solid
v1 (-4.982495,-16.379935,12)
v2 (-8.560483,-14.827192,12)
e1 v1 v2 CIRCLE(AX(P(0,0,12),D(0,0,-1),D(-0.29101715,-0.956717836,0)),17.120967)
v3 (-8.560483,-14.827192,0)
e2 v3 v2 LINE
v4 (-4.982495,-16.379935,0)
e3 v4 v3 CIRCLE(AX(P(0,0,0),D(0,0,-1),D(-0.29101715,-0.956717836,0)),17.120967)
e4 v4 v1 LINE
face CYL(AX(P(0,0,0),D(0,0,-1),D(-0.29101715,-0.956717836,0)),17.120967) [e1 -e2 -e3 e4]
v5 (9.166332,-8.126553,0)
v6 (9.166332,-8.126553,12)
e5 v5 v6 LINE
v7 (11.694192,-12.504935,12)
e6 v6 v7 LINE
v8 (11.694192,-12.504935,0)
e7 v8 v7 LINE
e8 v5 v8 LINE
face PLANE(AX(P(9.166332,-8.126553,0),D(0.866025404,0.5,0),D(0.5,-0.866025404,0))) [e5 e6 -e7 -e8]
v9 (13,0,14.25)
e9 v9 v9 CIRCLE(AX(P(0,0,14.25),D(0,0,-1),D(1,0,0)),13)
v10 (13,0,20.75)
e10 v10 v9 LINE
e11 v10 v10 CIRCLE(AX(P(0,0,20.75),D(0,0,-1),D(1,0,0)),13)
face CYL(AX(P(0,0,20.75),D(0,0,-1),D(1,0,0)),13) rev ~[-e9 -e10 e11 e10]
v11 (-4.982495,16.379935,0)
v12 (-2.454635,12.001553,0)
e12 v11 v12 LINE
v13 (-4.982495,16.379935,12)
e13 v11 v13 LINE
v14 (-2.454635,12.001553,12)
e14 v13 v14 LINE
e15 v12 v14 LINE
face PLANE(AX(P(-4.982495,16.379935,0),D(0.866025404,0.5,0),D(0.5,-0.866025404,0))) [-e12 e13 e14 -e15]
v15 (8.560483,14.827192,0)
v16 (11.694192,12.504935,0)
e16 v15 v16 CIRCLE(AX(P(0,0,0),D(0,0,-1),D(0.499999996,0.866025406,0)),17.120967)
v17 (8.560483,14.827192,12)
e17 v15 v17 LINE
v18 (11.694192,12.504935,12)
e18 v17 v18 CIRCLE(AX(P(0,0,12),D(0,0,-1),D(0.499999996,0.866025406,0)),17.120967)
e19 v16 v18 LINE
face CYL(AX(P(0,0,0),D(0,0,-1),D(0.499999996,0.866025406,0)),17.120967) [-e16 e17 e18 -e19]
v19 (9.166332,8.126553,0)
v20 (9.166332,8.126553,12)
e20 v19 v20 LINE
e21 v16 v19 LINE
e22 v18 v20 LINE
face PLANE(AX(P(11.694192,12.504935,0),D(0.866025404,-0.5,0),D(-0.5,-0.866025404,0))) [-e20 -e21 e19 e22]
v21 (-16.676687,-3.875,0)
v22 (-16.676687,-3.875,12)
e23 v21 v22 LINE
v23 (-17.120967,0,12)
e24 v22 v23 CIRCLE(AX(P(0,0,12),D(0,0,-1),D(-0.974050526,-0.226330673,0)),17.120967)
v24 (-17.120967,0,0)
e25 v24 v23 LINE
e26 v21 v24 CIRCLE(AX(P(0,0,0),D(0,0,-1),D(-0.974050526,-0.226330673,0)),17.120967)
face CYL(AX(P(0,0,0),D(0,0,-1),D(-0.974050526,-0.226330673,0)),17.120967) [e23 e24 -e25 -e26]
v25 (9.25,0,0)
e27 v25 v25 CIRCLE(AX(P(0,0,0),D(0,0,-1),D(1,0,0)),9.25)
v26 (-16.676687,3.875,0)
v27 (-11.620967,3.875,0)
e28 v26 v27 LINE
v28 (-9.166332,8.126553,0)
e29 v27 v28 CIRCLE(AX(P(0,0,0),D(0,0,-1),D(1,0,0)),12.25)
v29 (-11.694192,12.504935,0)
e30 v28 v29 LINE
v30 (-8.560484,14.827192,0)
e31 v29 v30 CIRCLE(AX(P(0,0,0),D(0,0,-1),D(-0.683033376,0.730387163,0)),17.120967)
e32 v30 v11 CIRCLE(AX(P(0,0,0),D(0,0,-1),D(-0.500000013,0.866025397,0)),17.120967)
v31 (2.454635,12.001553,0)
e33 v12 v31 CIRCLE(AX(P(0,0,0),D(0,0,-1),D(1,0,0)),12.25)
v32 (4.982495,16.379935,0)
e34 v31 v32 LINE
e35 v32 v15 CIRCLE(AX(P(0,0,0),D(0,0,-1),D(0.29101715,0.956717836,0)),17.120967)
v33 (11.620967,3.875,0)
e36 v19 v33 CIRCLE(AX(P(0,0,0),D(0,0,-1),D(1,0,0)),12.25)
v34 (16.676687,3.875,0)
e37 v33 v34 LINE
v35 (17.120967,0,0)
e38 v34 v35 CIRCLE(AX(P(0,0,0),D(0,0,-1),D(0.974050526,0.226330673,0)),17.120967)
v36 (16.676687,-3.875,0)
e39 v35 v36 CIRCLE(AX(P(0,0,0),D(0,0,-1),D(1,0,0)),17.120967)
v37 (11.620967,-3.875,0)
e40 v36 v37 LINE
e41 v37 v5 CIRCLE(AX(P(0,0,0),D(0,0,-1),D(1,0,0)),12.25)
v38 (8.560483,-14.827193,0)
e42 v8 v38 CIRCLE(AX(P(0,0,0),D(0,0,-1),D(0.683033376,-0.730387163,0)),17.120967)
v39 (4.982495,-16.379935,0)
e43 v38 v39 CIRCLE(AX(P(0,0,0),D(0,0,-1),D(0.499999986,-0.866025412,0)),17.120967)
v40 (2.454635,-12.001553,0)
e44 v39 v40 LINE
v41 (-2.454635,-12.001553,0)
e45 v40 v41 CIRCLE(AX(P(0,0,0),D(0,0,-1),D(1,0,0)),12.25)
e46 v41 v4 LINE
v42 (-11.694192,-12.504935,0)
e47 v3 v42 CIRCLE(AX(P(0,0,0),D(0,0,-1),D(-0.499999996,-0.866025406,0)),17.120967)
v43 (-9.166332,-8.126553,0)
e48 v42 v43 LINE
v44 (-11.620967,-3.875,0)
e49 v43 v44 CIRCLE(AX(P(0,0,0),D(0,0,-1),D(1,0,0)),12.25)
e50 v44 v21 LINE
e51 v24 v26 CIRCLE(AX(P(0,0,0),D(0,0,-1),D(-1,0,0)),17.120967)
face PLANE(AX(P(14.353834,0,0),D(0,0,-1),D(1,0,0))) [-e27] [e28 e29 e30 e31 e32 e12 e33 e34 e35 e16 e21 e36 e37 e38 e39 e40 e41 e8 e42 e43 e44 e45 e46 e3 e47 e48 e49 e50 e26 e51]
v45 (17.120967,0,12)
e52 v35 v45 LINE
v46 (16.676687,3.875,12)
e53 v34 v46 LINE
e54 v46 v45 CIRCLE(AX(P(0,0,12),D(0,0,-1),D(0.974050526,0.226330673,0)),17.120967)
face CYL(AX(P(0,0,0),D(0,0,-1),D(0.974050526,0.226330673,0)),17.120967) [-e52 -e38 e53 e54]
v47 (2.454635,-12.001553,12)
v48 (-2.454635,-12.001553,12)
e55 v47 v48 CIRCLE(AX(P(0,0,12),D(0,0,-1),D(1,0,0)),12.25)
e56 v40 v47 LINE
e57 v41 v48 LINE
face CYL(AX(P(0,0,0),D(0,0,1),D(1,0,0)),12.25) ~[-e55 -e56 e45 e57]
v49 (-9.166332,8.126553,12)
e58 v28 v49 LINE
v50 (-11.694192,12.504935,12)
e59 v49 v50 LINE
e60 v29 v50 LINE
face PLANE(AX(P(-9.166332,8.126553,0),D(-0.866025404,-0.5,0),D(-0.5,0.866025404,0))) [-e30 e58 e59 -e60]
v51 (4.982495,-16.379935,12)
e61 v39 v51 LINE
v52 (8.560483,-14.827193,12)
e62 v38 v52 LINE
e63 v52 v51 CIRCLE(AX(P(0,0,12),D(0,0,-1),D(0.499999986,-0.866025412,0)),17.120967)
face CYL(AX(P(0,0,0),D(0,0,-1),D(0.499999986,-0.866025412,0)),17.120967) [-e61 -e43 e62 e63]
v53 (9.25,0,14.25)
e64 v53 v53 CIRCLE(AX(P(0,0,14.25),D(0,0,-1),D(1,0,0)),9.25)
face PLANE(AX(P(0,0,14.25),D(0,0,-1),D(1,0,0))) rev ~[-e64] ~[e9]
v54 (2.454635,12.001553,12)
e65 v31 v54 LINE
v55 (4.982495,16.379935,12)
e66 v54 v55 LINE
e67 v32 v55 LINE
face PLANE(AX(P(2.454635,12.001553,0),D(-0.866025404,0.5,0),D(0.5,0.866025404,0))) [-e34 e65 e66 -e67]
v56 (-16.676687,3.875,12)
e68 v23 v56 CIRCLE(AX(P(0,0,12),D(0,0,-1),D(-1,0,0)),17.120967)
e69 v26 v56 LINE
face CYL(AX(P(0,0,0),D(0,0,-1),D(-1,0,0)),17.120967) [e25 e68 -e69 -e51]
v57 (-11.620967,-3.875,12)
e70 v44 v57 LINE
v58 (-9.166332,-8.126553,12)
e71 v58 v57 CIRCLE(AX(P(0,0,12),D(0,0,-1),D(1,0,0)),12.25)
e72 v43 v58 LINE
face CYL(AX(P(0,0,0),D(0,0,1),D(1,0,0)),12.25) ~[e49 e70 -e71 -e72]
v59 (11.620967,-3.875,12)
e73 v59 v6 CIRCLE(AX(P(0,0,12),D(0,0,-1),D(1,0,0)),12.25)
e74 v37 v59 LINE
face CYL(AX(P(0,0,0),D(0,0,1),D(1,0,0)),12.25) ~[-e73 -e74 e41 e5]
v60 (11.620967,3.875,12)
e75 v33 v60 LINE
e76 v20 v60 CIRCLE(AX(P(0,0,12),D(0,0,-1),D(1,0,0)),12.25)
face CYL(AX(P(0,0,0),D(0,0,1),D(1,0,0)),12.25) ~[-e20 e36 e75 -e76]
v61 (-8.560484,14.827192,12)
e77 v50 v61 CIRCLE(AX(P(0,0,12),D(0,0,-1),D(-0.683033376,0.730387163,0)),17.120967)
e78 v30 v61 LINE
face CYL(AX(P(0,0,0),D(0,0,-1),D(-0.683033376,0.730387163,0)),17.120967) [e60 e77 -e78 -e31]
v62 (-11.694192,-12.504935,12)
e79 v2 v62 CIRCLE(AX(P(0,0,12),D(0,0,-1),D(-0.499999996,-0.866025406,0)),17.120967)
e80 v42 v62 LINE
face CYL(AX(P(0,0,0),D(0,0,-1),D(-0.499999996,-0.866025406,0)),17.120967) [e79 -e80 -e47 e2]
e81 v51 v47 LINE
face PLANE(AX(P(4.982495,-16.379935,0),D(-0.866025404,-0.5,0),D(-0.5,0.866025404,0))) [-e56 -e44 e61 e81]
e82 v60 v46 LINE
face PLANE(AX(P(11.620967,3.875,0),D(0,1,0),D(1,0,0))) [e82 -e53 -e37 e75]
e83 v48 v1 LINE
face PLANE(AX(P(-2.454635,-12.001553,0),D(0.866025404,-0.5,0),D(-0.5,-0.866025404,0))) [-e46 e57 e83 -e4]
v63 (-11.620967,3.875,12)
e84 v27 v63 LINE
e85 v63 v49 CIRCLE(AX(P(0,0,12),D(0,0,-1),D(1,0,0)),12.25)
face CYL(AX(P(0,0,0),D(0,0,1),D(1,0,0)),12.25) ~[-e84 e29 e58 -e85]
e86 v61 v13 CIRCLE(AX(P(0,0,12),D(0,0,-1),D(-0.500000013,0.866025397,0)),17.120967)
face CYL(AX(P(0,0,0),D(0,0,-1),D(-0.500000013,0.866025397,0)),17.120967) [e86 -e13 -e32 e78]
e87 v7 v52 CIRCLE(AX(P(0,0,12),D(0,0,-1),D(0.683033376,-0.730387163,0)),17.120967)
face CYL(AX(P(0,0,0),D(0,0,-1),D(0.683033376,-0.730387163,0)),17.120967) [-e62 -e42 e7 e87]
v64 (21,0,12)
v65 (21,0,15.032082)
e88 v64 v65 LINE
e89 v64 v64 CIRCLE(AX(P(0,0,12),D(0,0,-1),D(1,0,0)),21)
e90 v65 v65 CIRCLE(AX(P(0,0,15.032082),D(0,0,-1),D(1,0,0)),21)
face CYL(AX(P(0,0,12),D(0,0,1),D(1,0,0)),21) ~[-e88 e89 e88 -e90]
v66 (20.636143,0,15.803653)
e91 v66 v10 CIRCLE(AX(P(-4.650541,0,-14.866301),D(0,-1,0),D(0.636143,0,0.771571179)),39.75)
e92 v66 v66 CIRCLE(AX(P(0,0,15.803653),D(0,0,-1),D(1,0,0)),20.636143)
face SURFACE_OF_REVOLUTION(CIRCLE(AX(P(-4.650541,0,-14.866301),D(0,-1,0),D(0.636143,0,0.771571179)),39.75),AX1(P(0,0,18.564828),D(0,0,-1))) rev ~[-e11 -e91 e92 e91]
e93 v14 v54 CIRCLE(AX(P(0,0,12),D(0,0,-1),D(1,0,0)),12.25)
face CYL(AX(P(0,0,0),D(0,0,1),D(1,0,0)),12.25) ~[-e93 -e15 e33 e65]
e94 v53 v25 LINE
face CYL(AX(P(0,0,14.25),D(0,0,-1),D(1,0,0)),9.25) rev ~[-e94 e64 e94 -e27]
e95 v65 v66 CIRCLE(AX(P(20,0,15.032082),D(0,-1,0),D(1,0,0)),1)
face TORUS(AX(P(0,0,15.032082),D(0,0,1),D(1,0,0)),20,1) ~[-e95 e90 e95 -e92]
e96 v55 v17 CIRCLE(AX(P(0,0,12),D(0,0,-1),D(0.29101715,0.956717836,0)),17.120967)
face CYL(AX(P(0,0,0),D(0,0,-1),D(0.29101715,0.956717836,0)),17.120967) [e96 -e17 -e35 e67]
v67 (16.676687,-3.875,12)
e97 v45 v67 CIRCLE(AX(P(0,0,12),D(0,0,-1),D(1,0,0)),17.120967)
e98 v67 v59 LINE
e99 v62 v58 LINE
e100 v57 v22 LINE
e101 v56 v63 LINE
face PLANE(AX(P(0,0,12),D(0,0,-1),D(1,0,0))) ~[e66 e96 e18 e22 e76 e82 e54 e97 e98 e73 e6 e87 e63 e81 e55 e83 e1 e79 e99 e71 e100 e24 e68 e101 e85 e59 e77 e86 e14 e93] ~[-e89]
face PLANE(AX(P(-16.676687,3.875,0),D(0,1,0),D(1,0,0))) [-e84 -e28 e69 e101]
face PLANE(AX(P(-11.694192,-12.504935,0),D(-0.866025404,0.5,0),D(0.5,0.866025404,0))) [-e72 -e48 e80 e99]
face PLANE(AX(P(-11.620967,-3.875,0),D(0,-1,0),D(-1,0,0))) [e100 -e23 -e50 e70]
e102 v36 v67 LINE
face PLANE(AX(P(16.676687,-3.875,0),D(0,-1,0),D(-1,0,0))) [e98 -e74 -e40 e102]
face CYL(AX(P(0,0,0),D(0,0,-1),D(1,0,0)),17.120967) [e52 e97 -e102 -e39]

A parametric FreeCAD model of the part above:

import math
import FreeCAD as App
import Part
import Sketcher
from FreeCAD import Vector
Q = App.Units.Quantity

doc = App.newDocument("Part")
body = doc.addObject("PartDesign::Body", "Body")

# Sketch on XZ plane
sketch1 = doc.addObject("Sketcher::SketchObject", "Sketch")
body.addObject(sketch1)
sketch1.AttachmentSupport = (doc.XZ_Plane, [""])
sketch1.MapMode = "FlatFace"
sketch1.addGeometry(Part.LineSegment(Vector(9.25, 0, 0), Vector(12.25, 0, 0)), False)
sketch1.addGeometry(Part.LineSegment(Vector(12.25, 0, 0), Vector(12.25, 12, 0)), False)
sketch1.addGeometry(Part.LineSegment(Vector(12.25, 12, 0), Vector(21, 12, 0)), False)
sketch1.addGeometry(Part.LineSegment(Vector(21, 12, 0), Vector(21, 15.032082, 0)), False)
sketch1.addGeometry(Part.ArcOfCircle(Part.Circle(Vector(20, 15.032082, 0), Vector(0, 0, 1), 1), math.radians(0), math.radians(50.49519)), False)
sketch1.addGeometry(Part.ArcOfCircle(Part.Circle(Vector(-4.650541, -14.866301, 0), Vector(0, 0, 1), 39.75), math.radians(50.49519), math.radians(63.638144)), False)
sketch1.addGeometry(Part.LineSegment(Vector(13, 20.75, 0), Vector(13, 14.25, 0)), False)
sketch1.addGeometry(Part.LineSegment(Vector(13, 14.25, 0), Vector(9.25, 14.25, 0)), False)
sketch1.addGeometry(Part.LineSegment(Vector(9.25, 14.25, 0), Vector(9.25, 0, 0)), False)
sketch1.addConstraint(Sketcher.Constraint("Coincident", 0, 2, 1, 1))
sketch1.addConstraint(Sketcher.Constraint("Coincident", 1, 2, 2, 1))
sketch1.addConstraint(Sketcher.Constraint("Coincident", 2, 2, 3, 1))
sketch1.addConstraint(Sketcher.Constraint("Tangent", 3, 2, 4, 1))
sketch1.addConstraint(Sketcher.Constraint("Tangent", 4, 2, 5, 1))
sketch1.addConstraint(Sketcher.Constraint("Coincident", 5, 2, 6, 1))
sketch1.addConstraint(Sketcher.Constraint("Coincident", 6, 2, 7, 1))
sketch1.addConstraint(Sketcher.Constraint("Coincident", 7, 2, 8, 1))
sketch1.addConstraint(Sketcher.Constraint("Coincident", 8, 2, 0, 1))
sketch1.addConstraint(Sketcher.Constraint("Horizontal", 0))
sketch1.addConstraint(Sketcher.Constraint("Vertical", 1))
sketch1.addConstraint(Sketcher.Constraint("Horizontal", 2))
sketch1.addConstraint(Sketcher.Constraint("Vertical", 3))
sketch1.addConstraint(Sketcher.Constraint("Vertical", 6))
sketch1.addConstraint(Sketcher.Constraint("Horizontal", 7))
sketch1.addConstraint(Sketcher.Constraint("Vertical", 8))
sketch1.addConstraint(Sketcher.Constraint("PointOnObject", 0, 2, -1))
sketch1.addConstraint(Sketcher.Constraint("Radius", 4, 1.0))
sketch1.addConstraint(Sketcher.Constraint("DistanceX", 0, 1, 0, 2, 3.0))
sketch1.addConstraint(Sketcher.Constraint("DistanceY", 1, 1, 1, 2, 12.0))
sketch1.addConstraint(Sketcher.Constraint("Radius", 5, 39.75))
sketch1.addConstraint(Sketcher.Constraint("DistanceY", 6, 2, 6, 1, 6.5))
sketch1.addConstraint(Sketcher.Constraint("DistanceX", -1, 1, 4, 3, 20.0))
sketch1.addConstraint(Sketcher.Constraint("DistanceX", -1, 1, 5, 2, 13.0))
sketch1.addConstraint(Sketcher.Constraint("DistanceX", 2, 1, 2, 2, 8.75))
sketch1.addConstraint(Sketcher.Constraint("DistanceY", 8, 2, 8, 1, 14.25))
sketch1.addConstraint(Sketcher.Constraint("DistanceY", 5, 3, -1, 1, 14.866301))
revolution = doc.addObject("PartDesign::Revolution", "Revolution")
body.addObject(revolution)
revolution.Profile = sketch1
revolution.ReferenceAxis = (sketch1, ["V_Axis"])
revolution.Angle = 360

# Sketch on XY plane
sketch2 = doc.addObject("Sketcher::SketchObject", "Sketch001")
body.addObject(sketch2)
sketch2.AttachmentSupport = (doc.XY_Plane, [""])
sketch2.MapMode = "FlatFace"
sketch2.addGeometry(Part.ArcOfCircle(Part.Circle(Vector(0, 0, 0), Vector(0, 0, 1), 12.25), math.radians(161.559086), math.radians(198.440914)), False)
sketch2.addGeometry(Part.LineSegment(Vector(-11.620967, -3.875, 0), Vector(-16.676687, -3.875, 0)), False)
sketch2.addGeometry(Part.ArcOfCircle(Part.Circle(Vector(0, 0, 0), Vector(0, 0, 1), 17.120967), math.radians(180), math.radians(193.081139)), False)
sketch2.addGeometry(Part.ArcOfCircle(Part.Circle(Vector(0, 0, 0), Vector(0, 0, 1), 17.120967), math.radians(166.918861), math.radians(180)), False)
sketch2.addGeometry(Part.LineSegment(Vector(-16.676687, 3.875, 0), Vector(-11.620967, 3.875, 0)), False)
sketch2.addGeometry(Part.ArcOfCircle(Part.Circle(Vector(0, 0, 0), Vector(0, 0, 1), 12.25), math.radians(101.559086), math.radians(138.440914)), False)
sketch2.addGeometry(Part.LineSegment(Vector(-9.166332, 8.126553, 0), Vector(-11.694192, 12.504935, 0)), False)
sketch2.addGeometry(Part.ArcOfCircle(Part.Circle(Vector(0, 0, 0), Vector(0, 0, 1), 17.120967), math.radians(120.000001), math.radians(133.081139)), False)
sketch2.addGeometry(Part.ArcOfCircle(Part.Circle(Vector(0, 0, 0), Vector(0, 0, 1), 17.120967), math.radians(106.918861), math.radians(120.000001)), False)
sketch2.addGeometry(Part.LineSegment(Vector(-4.982495, 16.379935, 0), Vector(-2.454635, 12.001553, 0)), False)
sketch2.addGeometry(Part.ArcOfCircle(Part.Circle(Vector(0, 0, 0), Vector(0, 0, 1), 12.25), math.radians(41.559086), math.radians(78.440914)), False)
sketch2.addGeometry(Part.LineSegment(Vector(2.454635, 12.001553, 0), Vector(4.982495, 16.379935, 0)), False)
sketch2.addGeometry(Part.ArcOfCircle(Part.Circle(Vector(0, 0, 0), Vector(0, 0, 1), 17.120967), math.radians(60), math.radians(73.081139)), False)
sketch2.addGeometry(Part.ArcOfCircle(Part.Circle(Vector(0, 0, 0), Vector(0, 0, 1), 17.120967), math.radians(46.918861), math.radians(60)), False)
sketch2.addGeometry(Part.LineSegment(Vector(11.694192, 12.504935, 0), Vector(9.166332, 8.126553, 0)), False)
sketch2.addGeometry(Part.LineSegment(Vector(16.676687, -3.875, 0), Vector(11.620967, -3.875, 0)), False)
sketch2.addGeometry(Part.ArcOfCircle(Part.Circle(Vector(0, 0, 0), Vector(0, 0, 1), 12.25), math.radians(-18.440914), math.radians(0)), False)
sketch2.addGeometry(Part.ArcOfCircle(Part.Circle(Vector(0, 0, 0), Vector(0, 0, 1), 12.25), math.radians(0), math.radians(18.440914)), False)
sketch2.addGeometry(Part.LineSegment(Vector(11.620967, 3.875, 0), Vector(16.676687, 3.875, 0)), False)
sketch2.addGeometry(Part.ArcOfCircle(Part.Circle(Vector(0, 0, 0), Vector(0, 0, 1), 17.120967), math.radians(0), math.radians(13.081139)), False)
sketch2.addGeometry(Part.ArcOfCircle(Part.Circle(Vector(0, 0, 0), Vector(0, 0, 1), 17.120967), math.radians(-13.081139), math.radians(0)), False)
sketch2.addGeometry(Part.LineSegment(Vector(4.982495, -16.379935, 0), Vector(2.454635, -12.001553, 0)), False)
sketch2.addGeometry(Part.ArcOfCircle(Part.Circle(Vector(0, 0, 0), Vector(0, 0, 1), 12.25), math.radians(-78.440914), math.radians(-41.559086)), False)
sketch2.addGeometry(Part.LineSegment(Vector(9.166332, -8.126553, 0), Vector(11.694192, -12.504935, 0)), False)
sketch2.addGeometry(Part.ArcOfCircle(Part.Circle(Vector(0, 0, 0), Vector(0, 0, 1), 17.120967), math.radians(-60.000001), math.radians(-46.918861)), False)
sketch2.addGeometry(Part.ArcOfCircle(Part.Circle(Vector(0, 0, 0), Vector(0, 0, 1), 17.120967), math.radians(-73.081139), math.radians(-60.000001)), False)
sketch2.addGeometry(Part.LineSegment(Vector(-11.694192, -12.504935, 0), Vector(-9.166332, -8.126553, 0)), False)
sketch2.addGeometry(Part.ArcOfCircle(Part.Circle(Vector(0, 0, 0), Vector(0, 0, 1), 12.25), math.radians(-138.440914), math.radians(-101.559086)), False)
sketch2.addGeometry(Part.LineSegment(Vector(-2.454635, -12.001553, 0), Vector(-4.982495, -16.379935, 0)), False)
sketch2.addGeometry(Part.ArcOfCircle(Part.Circle(Vector(0, 0, 0), Vector(0, 0, 1), 17.120967), math.radians(-120), math.radians(-106.918861)), False)
sketch2.addGeometry(Part.ArcOfCircle(Part.Circle(Vector(0, 0, 0), Vector(0, 0, 1), 17.120967), math.radians(-133.081139), math.radians(-120)), False)
sketch2.addConstraint(Sketcher.Constraint("Coincident", 0, 2, 1, 1))
sketch2.addConstraint(Sketcher.Constraint("Coincident", 1, 2, 2, 2))
sketch2.addConstraint(Sketcher.Constraint("Tangent", 2, 1, 3, 2))
sketch2.addConstraint(Sketcher.Constraint("Coincident", 3, 1, 4, 1))
sketch2.addConstraint(Sketcher.Constraint("Coincident", 4, 2, 0, 1))
sketch2.addConstraint(Sketcher.Constraint("Coincident", 5, 2, 6, 1))
sketch2.addConstraint(Sketcher.Constraint("Coincident", 6, 2, 7, 2))
sketch2.addConstraint(Sketcher.Constraint("Tangent", 7, 1, 8, 2))
sketch2.addConstraint(Sketcher.Constraint("Coincident", 8, 1, 9, 1))
sketch2.addConstraint(Sketcher.Constraint("Coincident", 9, 2, 5, 1))
sketch2.addConstraint(Sketcher.Constraint("Coincident", 10, 2, 11, 1))
sketch2.addConstraint(Sketcher.Constraint("Coincident", 11, 2, 12, 2))
sketch2.addConstraint(Sketcher.Constraint("Tangent", 12, 1, 13, 2))
sketch2.addConstraint(Sketcher.Constraint("Coincident", 13, 1, 14, 1))
sketch2.addConstraint(Sketcher.Constraint("Coincident", 14, 2, 10, 1))
sketch2.addConstraint(Sketcher.Constraint("Coincident", 15, 2, 16, 1))
sketch2.addConstraint(Sketcher.Constraint("Tangent", 16, 2, 17, 1))
sketch2.addConstraint(Sketcher.Constraint("Coincident", 17, 2, 18, 1))
sketch2.addConstraint(Sketcher.Constraint("Coincident", 18, 2, 19, 2))
sketch2.addConstraint(Sketcher.Constraint("Tangent", 19, 1, 20, 2))
sketch2.addConstraint(Sketcher.Constraint("Coincident", 20, 1, 15, 1))
sketch2.addConstraint(Sketcher.Constraint("Coincident", 21, 2, 22, 1))
sketch2.addConstraint(Sketcher.Constraint("Coincident", 22, 2, 23, 1))
sketch2.addConstraint(Sketcher.Constraint("Coincident", 23, 2, 24, 2))
sketch2.addConstraint(Sketcher.Constraint("Tangent", 24, 1, 25, 2))
sketch2.addConstraint(Sketcher.Constraint("Coincident", 25, 1, 21, 1))
sketch2.addConstraint(Sketcher.Constraint("Coincident", 26, 2, 27, 1))
sketch2.addConstraint(Sketcher.Constraint("Coincident", 27, 2, 28, 1))
sketch2.addConstraint(Sketcher.Constraint("Coincident", 28, 2, 29, 2))
sketch2.addConstraint(Sketcher.Constraint("Tangent", 29, 1, 30, 2))
sketch2.addConstraint(Sketcher.Constraint("Coincident", 30, 1, 26, 1))
sketch2.addConstraint(Sketcher.Constraint("Horizontal", 1))
sketch2.addConstraint(Sketcher.Constraint("Horizontal", 4))
sketch2.addConstraint(Sketcher.Constraint("Horizontal", 15))
sketch2.addConstraint(Sketcher.Constraint("Horizontal", 18))
sketch2.addConstraint(Sketcher.Constraint("Coincident", 0, 3, -1, 1))
sketch2.addConstraint(Sketcher.Constraint("Coincident", 2, 3, -1, 1))
sketch2.addConstraint(Sketcher.Constraint("Coincident", 5, 3, -1, 1))
sketch2.addConstraint(Sketcher.Constraint("Coincident", 7, 3, -1, 1))
sketch2.addConstraint(Sketcher.Constraint("Coincident", 10, 3, -1, 1))
sketch2.addConstraint(Sketcher.Constraint("Coincident", 12, 3, -1, 1))
sketch2.addConstraint(Sketcher.Constraint("Coincident", 16, 3, -1, 1))
sketch2.addConstraint(Sketcher.Constraint("Coincident", 19, 3, -1, 1))
sketch2.addConstraint(Sketcher.Constraint("Coincident", 22, 3, -1, 1))
sketch2.addConstraint(Sketcher.Constraint("Coincident", 24, 3, -1, 1))
sketch2.addConstraint(Sketcher.Constraint("Coincident", 27, 3, -1, 1))
sketch2.addConstraint(Sketcher.Constraint("Coincident", 29, 3, -1, 1))
sketch2.addConstraint(Sketcher.Constraint("Equal", 2, 3))
sketch2.addConstraint(Sketcher.Constraint("Equal", 0, 5))
sketch2.addConstraint(Sketcher.Constraint("Equal", 3, 7))
sketch2.addConstraint(Sketcher.Constraint("Equal", 7, 8))
sketch2.addConstraint(Sketcher.Constraint("Equal", 5, 10))
sketch2.addConstraint(Sketcher.Constraint("Equal", 8, 12))
sketch2.addConstraint(Sketcher.Constraint("Equal", 12, 13))
sketch2.addConstraint(Sketcher.Constraint("Equal", 10, 16))
sketch2.addConstraint(Sketcher.Constraint("Equal", 16, 17))
sketch2.addConstraint(Sketcher.Constraint("Equal", 13, 19))
sketch2.addConstraint(Sketcher.Constraint("Equal", 19, 20))
sketch2.addConstraint(Sketcher.Constraint("Equal", 17, 22))
sketch2.addConstraint(Sketcher.Constraint("Equal", 20, 24))
sketch2.addConstraint(Sketcher.Constraint("Equal", 24, 25))
sketch2.addConstraint(Sketcher.Constraint("Equal", 22, 27))
sketch2.addConstraint(Sketcher.Constraint("Equal", 25, 29))
sketch2.addConstraint(Sketcher.Constraint("Equal", 29, 30))
sketch2.addConstraint(Sketcher.Constraint("PointOnObject", 2, 1, -1))
sketch2.addConstraint(Sketcher.Constraint("PointOnObject", 16, 2, -1))
sketch2.addConstraint(Sketcher.Constraint("PointOnObject", 19, 1, -1))
sketch2.addConstraint(Sketcher.Constraint("Parallel", 6, 9))
sketch2.addConstraint(Sketcher.Constraint("Parallel", 11, 14))
sketch2.addConstraint(Sketcher.Constraint("Parallel", 9, 21))
sketch2.addConstraint(Sketcher.Constraint("Parallel", 21, 23))
sketch2.addConstraint(Sketcher.Constraint("Parallel", 14, 26))
sketch2.addConstraint(Sketcher.Constraint("Parallel", 26, 28))
sketch2.addConstraint(Sketcher.Constraint("Horizontal", 9, 2, 10, 2))
sketch2.addConstraint(Sketcher.Constraint("Horizontal", 8, 1, 11, 2))
sketch2.addConstraint(Sketcher.Constraint("Horizontal", 7, 1, 12, 1))
sketch2.addConstraint(Sketcher.Constraint("Horizontal", 6, 2, 13, 1))
sketch2.addConstraint(Sketcher.Constraint("Horizontal", 1, 2, 15, 2))
sketch2.addConstraint(Sketcher.Constraint("Horizontal", 4, 2, 17, 2))
sketch2.addConstraint(Sketcher.Constraint("Horizontal", 22, 2, 26, 2))
sketch2.addConstraint(Sketcher.Constraint("Horizontal", 21, 2, 27, 2))
sketch2.addConstraint(Sketcher.Constraint("Horizontal", 24, 1, 29, 1))
sketch2.addConstraint(Sketcher.Constraint("Vertical", 1, 2, 3, 1))
sketch2.addConstraint(Sketcher.Constraint("Vertical", 10, 2, 21, 2))
sketch2.addConstraint(Sketcher.Constraint("Vertical", 14, 2, 22, 2))
sketch2.addConstraint(Sketcher.Constraint("Vertical", 12, 1, 24, 1))
sketch2.addConstraint(Sketcher.Constraint("Equal", 6, 9))
sketch2.addConstraint(Sketcher.Constraint("Angle", 6, Q("120 deg")))
sketch2.addConstraint(Sketcher.Constraint("Radius", 0, 12.25))
sketch2.addConstraint(Sketcher.Constraint("DistanceX", 2, 1, 0, 2, 5.5))
sketch2.addConstraint(Sketcher.Constraint("DistanceY", 1, 2, 3, 1, 7.75))
sketch2.addConstraint(Sketcher.Constraint("DistanceY", 6, 2, 8, 1, 3.875))
sketch2.addConstraint(Sketcher.Constraint("DistanceX", 6, 2, 7, 1, 3.133708))
pad1 = doc.addObject("PartDesign::Pad", "Pad")
body.addObject(pad1)
pad1.Profile = sketch2
pad1.Length = 12

doc.recompute()
